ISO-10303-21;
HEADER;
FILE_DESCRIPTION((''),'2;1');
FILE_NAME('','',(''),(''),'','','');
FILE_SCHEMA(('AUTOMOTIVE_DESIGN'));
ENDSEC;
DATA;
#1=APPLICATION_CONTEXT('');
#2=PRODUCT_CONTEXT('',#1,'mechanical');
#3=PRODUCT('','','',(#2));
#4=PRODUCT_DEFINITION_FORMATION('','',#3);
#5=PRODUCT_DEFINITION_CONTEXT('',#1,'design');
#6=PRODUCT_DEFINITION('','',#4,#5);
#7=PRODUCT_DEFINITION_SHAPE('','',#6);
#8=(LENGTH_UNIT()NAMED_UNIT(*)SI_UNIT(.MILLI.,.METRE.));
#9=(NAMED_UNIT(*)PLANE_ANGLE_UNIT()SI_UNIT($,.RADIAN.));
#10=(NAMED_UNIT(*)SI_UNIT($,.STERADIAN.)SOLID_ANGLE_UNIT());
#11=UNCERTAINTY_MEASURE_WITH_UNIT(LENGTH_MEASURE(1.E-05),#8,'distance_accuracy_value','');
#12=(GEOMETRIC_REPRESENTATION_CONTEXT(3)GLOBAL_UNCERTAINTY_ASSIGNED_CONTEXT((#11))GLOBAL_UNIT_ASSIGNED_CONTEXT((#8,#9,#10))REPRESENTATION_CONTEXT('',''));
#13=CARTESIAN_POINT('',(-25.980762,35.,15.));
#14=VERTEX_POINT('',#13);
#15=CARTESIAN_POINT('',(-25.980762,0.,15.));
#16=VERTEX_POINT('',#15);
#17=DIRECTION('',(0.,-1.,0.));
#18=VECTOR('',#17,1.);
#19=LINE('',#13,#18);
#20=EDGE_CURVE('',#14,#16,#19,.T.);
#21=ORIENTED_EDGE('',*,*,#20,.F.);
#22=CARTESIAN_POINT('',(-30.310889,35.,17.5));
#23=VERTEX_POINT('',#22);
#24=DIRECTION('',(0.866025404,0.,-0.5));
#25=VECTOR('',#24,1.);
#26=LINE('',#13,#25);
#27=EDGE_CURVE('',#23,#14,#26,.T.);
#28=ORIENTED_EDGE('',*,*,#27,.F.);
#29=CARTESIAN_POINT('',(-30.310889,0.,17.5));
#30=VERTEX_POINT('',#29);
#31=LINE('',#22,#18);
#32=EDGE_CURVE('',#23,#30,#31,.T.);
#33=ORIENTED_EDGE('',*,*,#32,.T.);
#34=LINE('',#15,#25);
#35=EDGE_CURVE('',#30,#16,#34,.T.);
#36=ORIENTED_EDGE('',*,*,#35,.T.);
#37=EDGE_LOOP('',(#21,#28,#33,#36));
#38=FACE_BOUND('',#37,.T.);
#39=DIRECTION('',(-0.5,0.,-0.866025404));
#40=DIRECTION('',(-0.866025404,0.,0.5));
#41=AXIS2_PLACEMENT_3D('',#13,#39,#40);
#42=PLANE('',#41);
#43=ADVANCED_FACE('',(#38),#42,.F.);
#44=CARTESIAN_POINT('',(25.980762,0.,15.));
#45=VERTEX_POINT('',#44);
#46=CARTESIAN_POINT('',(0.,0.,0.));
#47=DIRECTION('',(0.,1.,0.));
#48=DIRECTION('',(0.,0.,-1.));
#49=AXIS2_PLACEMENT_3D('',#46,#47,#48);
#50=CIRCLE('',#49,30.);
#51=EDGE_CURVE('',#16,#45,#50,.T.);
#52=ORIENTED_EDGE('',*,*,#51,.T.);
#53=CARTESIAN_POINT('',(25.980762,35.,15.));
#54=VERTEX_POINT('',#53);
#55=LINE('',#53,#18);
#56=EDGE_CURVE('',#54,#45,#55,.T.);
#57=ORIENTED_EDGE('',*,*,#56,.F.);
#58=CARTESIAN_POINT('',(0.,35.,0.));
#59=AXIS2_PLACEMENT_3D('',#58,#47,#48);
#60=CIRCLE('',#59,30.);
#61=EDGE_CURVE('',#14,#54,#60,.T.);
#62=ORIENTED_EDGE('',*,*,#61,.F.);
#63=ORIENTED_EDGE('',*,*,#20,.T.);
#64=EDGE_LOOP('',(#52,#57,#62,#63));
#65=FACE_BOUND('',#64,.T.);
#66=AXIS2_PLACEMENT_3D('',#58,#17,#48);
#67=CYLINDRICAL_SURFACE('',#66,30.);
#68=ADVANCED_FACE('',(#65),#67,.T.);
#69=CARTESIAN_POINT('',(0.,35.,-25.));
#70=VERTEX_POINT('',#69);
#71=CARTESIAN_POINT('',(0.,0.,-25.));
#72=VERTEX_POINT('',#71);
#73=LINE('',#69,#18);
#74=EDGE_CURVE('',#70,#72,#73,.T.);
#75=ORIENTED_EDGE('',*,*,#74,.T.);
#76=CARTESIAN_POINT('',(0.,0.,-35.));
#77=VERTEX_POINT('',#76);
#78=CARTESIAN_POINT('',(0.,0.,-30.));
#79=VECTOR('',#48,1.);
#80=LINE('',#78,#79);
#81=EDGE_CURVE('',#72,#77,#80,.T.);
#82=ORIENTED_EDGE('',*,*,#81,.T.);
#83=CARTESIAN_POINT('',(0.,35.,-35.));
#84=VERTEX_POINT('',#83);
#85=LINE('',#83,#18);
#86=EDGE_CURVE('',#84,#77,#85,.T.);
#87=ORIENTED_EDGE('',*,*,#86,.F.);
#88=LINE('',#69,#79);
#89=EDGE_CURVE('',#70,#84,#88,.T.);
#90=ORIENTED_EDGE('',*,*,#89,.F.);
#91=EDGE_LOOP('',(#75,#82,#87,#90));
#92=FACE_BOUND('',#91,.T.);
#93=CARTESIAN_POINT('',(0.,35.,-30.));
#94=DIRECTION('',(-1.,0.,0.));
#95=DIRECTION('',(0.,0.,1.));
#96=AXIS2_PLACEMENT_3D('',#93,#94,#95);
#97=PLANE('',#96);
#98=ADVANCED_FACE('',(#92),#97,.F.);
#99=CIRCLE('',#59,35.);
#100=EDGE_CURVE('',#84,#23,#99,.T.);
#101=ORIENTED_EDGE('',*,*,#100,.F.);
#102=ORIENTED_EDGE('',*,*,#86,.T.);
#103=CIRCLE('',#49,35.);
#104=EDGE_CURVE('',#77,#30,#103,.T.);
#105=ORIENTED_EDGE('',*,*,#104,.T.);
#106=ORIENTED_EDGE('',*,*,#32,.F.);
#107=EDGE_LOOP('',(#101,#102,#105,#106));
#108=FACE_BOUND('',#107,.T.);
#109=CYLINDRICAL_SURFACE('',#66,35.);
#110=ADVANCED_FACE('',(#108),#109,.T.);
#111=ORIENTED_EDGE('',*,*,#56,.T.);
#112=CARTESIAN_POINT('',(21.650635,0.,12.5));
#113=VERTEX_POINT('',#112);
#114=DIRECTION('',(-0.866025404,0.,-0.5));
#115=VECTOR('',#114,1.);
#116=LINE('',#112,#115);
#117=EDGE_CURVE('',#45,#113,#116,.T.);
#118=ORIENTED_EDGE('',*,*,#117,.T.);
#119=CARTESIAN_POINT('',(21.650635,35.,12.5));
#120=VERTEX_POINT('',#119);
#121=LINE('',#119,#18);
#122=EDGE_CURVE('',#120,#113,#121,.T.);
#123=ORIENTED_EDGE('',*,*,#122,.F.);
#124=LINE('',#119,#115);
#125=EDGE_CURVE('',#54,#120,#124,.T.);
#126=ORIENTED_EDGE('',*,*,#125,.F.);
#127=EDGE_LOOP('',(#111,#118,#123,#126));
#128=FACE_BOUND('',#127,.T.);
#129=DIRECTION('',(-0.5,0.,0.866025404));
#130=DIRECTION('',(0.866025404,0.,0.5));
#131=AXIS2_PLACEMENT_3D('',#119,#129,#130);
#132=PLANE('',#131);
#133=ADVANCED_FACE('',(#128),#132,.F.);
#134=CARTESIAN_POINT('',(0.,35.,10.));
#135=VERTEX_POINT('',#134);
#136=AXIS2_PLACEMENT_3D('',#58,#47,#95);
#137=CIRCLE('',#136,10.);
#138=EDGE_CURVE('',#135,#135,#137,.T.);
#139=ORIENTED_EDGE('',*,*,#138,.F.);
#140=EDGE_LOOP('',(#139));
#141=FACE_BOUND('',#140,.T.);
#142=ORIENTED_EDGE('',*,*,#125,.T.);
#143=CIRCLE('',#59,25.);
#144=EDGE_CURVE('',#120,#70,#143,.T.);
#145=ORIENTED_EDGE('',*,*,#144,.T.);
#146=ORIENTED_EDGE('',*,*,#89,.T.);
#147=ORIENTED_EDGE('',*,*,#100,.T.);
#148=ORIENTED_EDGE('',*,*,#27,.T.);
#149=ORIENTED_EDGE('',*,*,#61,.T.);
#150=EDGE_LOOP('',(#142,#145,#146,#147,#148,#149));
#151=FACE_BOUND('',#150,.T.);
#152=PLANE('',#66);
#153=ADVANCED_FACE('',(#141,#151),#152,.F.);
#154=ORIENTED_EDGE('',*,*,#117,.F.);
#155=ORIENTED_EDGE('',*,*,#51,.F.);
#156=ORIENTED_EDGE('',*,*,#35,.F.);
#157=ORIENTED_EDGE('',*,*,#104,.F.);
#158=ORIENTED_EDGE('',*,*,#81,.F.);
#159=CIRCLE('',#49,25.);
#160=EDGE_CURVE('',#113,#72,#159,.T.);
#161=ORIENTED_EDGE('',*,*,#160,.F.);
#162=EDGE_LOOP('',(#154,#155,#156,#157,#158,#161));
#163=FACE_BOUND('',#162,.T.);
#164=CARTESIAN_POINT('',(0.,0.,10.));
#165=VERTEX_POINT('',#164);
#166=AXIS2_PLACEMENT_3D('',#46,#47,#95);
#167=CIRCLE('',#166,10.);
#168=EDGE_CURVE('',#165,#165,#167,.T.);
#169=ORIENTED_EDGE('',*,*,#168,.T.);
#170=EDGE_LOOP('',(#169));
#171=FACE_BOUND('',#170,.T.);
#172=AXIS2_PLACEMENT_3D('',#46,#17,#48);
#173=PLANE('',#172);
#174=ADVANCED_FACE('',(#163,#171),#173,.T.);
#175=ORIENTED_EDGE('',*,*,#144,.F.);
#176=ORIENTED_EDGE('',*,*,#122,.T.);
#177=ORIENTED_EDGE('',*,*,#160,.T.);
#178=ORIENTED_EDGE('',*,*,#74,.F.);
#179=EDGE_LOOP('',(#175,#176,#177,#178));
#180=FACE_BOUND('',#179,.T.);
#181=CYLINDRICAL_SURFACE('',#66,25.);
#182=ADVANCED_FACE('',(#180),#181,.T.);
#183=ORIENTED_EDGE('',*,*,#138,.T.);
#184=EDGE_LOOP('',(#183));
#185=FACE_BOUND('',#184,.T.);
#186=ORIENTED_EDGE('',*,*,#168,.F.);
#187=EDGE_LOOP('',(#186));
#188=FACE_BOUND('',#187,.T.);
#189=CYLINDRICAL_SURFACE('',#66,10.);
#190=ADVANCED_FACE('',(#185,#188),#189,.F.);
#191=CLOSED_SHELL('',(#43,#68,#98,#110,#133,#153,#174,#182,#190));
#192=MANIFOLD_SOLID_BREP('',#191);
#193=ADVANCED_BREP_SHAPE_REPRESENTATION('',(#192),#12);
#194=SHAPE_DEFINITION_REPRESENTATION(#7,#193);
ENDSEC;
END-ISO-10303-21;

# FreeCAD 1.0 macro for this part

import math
import FreeCAD as App
import Part
import Sketcher

V = App.Vector
Q = App.Units.Quantity

doc = App.newDocument("Part")
body = doc.addObject("PartDesign::Body", "Body")

# Sketch on XZ plane
sketch1 = doc.addObject("Sketcher::SketchObject", "Sketch")
body.addObject(sketch1)
sketch1.AttachmentSupport = (doc.XZ_Plane, [""])
sketch1.MapMode = "FlatFace"
sketch1.addGeometry([
    Part.LineSegment(V(0, -25, 0), V(0, -35, 0)),  # 0
    Part.ArcOfCircle(Part.Circle(V(0, 0, 0), V(0, 0, 1), 35), math.radians(150), math.radians(270)),  # 1
    Part.LineSegment(V(-30.3, 17.5, 0), V(-26, 15, 0)),  # 2
    Part.ArcOfCircle(Part.Circle(V(0, 0, 0), V(0, 0, 1), 30), math.radians(30), math.radians(150)),  # 3
    Part.LineSegment(V(26, 15, 0), V(21.7, 12.5, 0)),  # 4
    Part.ArcOfCircle(Part.Circle(V(0, 0, 0), V(0, 0, 1), 25), math.radians(-90), math.radians(30)),  # 5
    Part.Circle(V(0, 0, 0), V(0, 0, 1), 10),  # 6
], False)
sketch1.addConstraint([
    Sketcher.Constraint("Coincident", 0, 2, 1, 2),
    Sketcher.Constraint("Coincident", 1, 1, 2, 1),
    Sketcher.Constraint("Coincident", 2, 2, 3, 2),
    Sketcher.Constraint("Coincident", 3, 1, 4, 1),
    Sketcher.Constraint("Coincident", 4, 2, 5, 2),
    Sketcher.Constraint("Coincident", 5, 1, 0, 1),
    Sketcher.Constraint("Vertical", 0),
    Sketcher.Constraint("Coincident", 1, 3, -1, 1),
    Sketcher.Constraint("Coincident", 3, 3, -1, 1),
    Sketcher.Constraint("Coincident", 5, 3, -1, 1),
    Sketcher.Constraint("Coincident", 6, 3, -1, 1),
    Sketcher.Constraint("PointOnObject", 0, 2, -2),
    Sketcher.Constraint("Horizontal", 2, 2, 3, 1),
    Sketcher.Constraint("Equal", 2, 4),
    Sketcher.Constraint("Diameter", 6, Q("20 mm")),
    Sketcher.Constraint("Radius", 1, Q("35 mm")),
    Sketcher.Constraint("Radius", 3, Q("30 mm")),
    Sketcher.Constraint("Angle", 2, Q("-30 deg")),
    Sketcher.Constraint("Angle", 4, Q("-150 deg")),
    Sketcher.Constraint("DistanceY", -1, 1, 2, 2, Q("15 mm")),
])
pad1 = doc.addObject("PartDesign::Pad", "Pad")
body.addObject(pad1)
pad1.Profile = sketch1
pad1.Length = 35
pad1.Reversed = True

doc.recompute()
